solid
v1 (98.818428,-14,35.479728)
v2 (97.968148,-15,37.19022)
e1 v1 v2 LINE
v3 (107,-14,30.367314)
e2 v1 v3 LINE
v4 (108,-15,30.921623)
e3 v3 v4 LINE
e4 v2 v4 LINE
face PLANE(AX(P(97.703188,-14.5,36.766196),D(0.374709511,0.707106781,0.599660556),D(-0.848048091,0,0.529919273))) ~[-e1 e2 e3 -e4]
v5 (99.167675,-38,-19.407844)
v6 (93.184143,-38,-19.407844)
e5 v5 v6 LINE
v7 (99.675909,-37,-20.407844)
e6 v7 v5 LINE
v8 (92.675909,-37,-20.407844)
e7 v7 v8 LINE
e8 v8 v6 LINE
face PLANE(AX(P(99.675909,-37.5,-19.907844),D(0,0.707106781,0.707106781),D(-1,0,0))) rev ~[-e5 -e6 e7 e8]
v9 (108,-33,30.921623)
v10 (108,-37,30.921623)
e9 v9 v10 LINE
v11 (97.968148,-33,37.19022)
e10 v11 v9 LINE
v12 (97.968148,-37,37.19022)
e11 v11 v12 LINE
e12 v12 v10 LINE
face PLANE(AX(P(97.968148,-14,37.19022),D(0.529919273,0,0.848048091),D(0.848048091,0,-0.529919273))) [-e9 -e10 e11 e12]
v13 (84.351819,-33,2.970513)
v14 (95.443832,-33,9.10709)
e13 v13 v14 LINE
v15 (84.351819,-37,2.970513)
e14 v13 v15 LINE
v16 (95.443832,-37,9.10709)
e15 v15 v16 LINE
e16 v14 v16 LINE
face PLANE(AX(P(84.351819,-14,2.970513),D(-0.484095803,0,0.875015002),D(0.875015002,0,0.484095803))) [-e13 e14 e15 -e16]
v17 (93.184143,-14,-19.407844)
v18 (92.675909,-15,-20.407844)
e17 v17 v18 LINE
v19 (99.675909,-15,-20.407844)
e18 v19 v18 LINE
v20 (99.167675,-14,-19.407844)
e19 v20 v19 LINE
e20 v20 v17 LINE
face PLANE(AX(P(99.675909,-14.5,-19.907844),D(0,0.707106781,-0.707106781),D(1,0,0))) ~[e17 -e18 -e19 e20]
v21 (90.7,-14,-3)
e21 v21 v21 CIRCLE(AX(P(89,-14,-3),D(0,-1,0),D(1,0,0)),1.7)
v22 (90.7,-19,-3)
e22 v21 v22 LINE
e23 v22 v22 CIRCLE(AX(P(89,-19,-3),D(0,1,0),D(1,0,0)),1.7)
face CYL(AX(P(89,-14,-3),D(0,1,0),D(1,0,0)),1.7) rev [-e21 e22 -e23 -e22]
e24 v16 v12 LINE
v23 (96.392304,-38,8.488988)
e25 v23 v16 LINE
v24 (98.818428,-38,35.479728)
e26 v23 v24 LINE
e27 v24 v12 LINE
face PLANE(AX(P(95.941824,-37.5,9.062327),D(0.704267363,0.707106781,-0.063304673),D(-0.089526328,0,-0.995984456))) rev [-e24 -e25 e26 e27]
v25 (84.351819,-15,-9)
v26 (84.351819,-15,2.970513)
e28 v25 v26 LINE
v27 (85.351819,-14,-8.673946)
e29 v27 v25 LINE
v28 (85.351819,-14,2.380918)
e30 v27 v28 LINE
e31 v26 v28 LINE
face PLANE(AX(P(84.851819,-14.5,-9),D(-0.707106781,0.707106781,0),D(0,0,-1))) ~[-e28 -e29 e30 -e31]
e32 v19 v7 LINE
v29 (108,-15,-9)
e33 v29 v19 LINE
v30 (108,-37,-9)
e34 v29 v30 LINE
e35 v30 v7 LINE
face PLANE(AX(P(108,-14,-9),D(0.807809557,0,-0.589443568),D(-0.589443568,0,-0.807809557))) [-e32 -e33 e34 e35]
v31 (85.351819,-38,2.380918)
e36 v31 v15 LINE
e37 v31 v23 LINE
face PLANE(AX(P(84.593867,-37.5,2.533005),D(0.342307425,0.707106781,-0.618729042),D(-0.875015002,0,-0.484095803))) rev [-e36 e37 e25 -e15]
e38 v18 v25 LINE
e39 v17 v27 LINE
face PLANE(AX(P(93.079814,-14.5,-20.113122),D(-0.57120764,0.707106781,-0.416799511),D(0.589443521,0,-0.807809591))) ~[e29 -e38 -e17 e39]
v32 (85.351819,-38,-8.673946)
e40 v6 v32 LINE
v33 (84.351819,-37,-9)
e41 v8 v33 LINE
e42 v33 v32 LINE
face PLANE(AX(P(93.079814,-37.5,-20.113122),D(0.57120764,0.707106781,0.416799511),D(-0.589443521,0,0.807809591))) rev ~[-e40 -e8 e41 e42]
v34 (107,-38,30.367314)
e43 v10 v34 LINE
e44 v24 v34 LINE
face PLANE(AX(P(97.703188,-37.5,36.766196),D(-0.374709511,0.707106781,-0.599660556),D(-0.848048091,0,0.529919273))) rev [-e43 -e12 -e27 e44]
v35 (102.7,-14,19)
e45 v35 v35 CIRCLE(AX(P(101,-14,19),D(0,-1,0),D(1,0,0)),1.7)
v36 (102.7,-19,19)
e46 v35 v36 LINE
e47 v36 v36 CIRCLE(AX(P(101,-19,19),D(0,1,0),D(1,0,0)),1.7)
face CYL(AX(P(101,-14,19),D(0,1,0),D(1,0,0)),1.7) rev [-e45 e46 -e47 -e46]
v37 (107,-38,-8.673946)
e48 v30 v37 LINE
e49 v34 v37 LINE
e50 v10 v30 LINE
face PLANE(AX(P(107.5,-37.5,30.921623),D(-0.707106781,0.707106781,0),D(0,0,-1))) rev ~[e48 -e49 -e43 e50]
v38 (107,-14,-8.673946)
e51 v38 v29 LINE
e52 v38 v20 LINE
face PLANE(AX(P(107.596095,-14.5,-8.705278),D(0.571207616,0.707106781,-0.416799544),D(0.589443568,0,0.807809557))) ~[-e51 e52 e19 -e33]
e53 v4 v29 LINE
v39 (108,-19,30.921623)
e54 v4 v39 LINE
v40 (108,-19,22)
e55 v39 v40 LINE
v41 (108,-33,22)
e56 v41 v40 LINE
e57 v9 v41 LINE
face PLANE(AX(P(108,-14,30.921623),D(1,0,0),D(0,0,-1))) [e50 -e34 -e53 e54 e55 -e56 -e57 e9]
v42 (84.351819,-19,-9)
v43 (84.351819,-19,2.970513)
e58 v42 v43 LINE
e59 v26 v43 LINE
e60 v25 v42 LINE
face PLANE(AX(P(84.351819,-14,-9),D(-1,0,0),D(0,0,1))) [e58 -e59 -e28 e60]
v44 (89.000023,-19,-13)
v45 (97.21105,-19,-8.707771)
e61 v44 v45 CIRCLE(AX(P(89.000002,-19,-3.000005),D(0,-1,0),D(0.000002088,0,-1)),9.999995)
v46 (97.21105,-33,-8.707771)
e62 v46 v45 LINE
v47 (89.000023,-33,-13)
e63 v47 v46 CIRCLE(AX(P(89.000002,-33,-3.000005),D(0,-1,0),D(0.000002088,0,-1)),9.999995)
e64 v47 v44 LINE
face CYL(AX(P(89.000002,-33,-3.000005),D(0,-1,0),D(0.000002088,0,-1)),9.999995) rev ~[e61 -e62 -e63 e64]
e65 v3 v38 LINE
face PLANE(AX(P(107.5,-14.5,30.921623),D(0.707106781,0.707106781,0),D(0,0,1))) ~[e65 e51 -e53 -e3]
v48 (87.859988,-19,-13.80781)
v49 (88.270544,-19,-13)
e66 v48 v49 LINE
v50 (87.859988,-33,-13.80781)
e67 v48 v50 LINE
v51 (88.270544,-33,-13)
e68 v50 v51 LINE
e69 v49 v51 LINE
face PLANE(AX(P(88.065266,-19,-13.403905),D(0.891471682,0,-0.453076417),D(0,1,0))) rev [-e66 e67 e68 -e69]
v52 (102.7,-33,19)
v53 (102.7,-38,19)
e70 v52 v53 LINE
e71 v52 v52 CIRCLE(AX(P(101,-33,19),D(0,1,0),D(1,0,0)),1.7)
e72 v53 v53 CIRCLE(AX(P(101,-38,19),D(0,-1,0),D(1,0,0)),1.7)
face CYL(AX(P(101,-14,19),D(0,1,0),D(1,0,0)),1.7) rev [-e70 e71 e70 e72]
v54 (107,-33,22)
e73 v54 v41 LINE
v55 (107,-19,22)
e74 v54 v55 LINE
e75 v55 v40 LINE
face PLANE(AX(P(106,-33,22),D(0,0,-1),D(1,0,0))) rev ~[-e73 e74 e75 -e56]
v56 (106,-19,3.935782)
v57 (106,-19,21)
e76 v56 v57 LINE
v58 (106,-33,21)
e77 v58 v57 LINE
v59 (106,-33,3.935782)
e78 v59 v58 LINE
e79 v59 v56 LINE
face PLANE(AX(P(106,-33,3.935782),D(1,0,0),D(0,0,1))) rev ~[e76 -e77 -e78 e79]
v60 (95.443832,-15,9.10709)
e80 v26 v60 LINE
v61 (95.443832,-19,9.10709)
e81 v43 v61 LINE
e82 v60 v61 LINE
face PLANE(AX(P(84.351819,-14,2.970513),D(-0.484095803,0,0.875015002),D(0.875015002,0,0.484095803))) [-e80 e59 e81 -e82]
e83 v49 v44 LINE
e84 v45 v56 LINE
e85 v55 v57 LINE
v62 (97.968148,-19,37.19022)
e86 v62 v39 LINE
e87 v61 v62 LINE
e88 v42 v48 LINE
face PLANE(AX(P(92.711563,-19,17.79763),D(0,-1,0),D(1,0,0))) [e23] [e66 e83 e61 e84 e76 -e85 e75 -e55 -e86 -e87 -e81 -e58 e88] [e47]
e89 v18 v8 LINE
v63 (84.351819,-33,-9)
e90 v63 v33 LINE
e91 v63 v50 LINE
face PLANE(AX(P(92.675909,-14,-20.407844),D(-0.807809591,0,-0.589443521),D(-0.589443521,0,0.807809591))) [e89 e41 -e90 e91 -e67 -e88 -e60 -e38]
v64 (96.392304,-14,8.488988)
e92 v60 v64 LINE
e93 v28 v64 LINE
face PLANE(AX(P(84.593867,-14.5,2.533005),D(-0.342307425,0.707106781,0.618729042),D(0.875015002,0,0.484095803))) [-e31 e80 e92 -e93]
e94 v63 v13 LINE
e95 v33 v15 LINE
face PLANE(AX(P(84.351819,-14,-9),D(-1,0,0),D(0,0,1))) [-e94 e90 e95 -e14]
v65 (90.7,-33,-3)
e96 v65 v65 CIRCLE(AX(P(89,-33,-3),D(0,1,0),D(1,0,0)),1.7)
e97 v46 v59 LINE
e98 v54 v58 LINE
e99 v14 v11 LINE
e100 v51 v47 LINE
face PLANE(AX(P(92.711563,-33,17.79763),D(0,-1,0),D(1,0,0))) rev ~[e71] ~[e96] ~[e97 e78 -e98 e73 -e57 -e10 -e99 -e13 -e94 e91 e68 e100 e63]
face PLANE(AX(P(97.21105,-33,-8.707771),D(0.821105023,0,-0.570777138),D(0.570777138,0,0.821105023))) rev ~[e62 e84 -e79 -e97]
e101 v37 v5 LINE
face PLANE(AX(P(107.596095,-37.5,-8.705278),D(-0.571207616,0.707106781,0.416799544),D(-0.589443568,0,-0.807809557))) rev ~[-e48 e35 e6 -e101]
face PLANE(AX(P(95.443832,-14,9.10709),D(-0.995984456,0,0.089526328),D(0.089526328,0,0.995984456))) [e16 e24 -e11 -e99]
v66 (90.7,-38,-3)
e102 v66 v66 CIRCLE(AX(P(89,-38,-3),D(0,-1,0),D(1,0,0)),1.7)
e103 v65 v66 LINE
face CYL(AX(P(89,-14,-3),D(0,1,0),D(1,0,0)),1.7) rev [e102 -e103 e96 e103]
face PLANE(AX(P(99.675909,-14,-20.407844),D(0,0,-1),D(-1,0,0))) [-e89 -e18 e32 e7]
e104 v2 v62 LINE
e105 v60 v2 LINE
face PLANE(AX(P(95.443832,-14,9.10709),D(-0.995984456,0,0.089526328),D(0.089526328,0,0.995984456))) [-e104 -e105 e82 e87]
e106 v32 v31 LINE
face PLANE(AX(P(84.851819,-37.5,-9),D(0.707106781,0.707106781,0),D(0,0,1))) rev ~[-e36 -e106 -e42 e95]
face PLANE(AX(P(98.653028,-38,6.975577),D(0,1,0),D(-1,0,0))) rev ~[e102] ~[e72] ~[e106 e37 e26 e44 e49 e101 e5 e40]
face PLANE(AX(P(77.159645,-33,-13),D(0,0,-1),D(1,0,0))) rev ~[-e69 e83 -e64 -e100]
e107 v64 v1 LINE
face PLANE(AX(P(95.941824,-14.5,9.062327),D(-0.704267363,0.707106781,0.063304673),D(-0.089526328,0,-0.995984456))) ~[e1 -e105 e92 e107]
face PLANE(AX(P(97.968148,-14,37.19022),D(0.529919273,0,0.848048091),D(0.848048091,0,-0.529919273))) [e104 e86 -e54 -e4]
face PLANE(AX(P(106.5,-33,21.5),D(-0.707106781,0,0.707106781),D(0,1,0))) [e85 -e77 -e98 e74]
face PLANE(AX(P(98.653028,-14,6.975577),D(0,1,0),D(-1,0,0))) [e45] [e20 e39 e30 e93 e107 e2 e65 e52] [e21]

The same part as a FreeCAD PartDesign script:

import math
import FreeCAD as App
import Part
import Sketcher
Q = App.Units.Quantity


def edges_at(feature, points):
    """Names of the edges that pass closest to the given points."""
    edges = feature.Shape.Edges
    near = lambda p: min(range(len(edges)), key=lambda i: edges[i].distToShape(Part.Vertex(*p))[0])
    return sorted({f"Edge{near(p) + 1}" for p in points})


def add_polygon(sketch, points):
    """Adds a closed chain of lines whose ends are joined by coincident constraints."""
    first, n = sketch.GeometryCount, len(points)
    for a, b in zip(points, points[1:] + points[:1]):
        sketch.addGeometry(Part.LineSegment(App.Vector(*a, 0), App.Vector(*b, 0)), False)
    for i in range(n):
        sketch.addConstraint(Sketcher.Constraint("Coincident", first + i, 2, first + (i + 1) % n, 1))

doc = App.newDocument("Part")
body = doc.addObject("PartDesign::Body", "Body")

# Sketch on XZ plane
sketch1 = body.newObject("Sketcher::SketchObject", "Sketch")
sketch1.AttachmentSupport = (doc.getObject("XZ_Plane"), [""])
sketch1.MapMode = "FlatFace"
sketch1.AttachmentOffset = App.Placement(App.Vector(0, 0, -33), App.Rotation())
sketch1.addGeometry(Part.ArcOfCircle(Part.Circle(App.Vector(-89.000002, -3.000005, 0), App.Vector(0, 0, 1), 9.999995), math.radians(-145.195582), math.radians(-90.00012)), False)
sketch1.addGeometry(Part.LineSegment(App.Vector(-97.21105, -8.707771, 0), App.Vector(-106, 3.935782, 0)), False)
sketch1.addGeometry(Part.LineSegment(App.Vector(-106, 3.935782, 0), App.Vector(-106, 22, 0)), False)
sketch1.addGeometry(Part.LineSegment(App.Vector(-106, 22, 0), App.Vector(-112.578117, 22, 0)), False)
sketch1.addGeometry(Part.LineSegment(App.Vector(-112.578117, 22, 0), App.Vector(-112.578117, 42.659393, 0)), False)
sketch1.addGeometry(Part.LineSegment(App.Vector(-112.578117, 42.659393, 0), App.Vector(-77.159645, 42.659393, 0)), False)
sketch1.addGeometry(Part.LineSegment(App.Vector(-77.159645, 42.659393, 0), App.Vector(-77.159645, -13, 0)), False)
sketch1.addGeometry(Part.LineSegment(App.Vector(-77.159645, -13, 0), App.Vector(-89.000023, -13, 0)), False)
sketch1.addConstraint(Sketcher.Constraint("Tangent", 0, 1, 1, 1))
sketch1.addConstraint(Sketcher.Constraint("Coincident", 1, 2, 2, 1))
sketch1.addConstraint(Sketcher.Constraint("Coincident", 2, 2, 3, 1))
sketch1.addConstraint(Sketcher.Constraint("Coincident", 3, 2, 4, 1))
sketch1.addConstraint(Sketcher.Constraint("Coincident", 4, 2, 5, 1))
sketch1.addConstraint(Sketcher.Constraint("Coincident", 5, 2, 6, 1))
sketch1.addConstraint(Sketcher.Constraint("Coincident", 6, 2, 7, 1))
sketch1.addConstraint(Sketcher.Constraint("Coincident", 7, 2, 0, 2))
sketch1.addConstraint(Sketcher.Constraint("Vertical", 2))
sketch1.addConstraint(Sketcher.Constraint("Horizontal", 3))
sketch1.addConstraint(Sketcher.Constraint("Vertical", 4))
sketch1.addConstraint(Sketcher.Constraint("Horizontal", 5))
sketch1.addConstraint(Sketcher.Constraint("Vertical", 6))
sketch1.addConstraint(Sketcher.Constraint("Horizontal", 7))
sketch1.addConstraint(Sketcher.Constraint("DistanceX", 1, 2, -1, 1, 106.0))
sketch1.addConstraint(Sketcher.Constraint("DistanceY", -1, 1, 2, 2, 22.0))
sketch1.addConstraint(Sketcher.Constraint("DistanceY", 6, 2, -1, 1, 13.0))
sketch1.addConstraint(Sketcher.Constraint("Radius", 0, 9.999995))
sketch1.addConstraint(Sketcher.Constraint("DistanceX", 7, 2, 7, 1, 11.840378))
sketch1.addConstraint(Sketcher.Constraint("DistanceY", 2, 1, 2, 2, 18.064218))
sketch1.addConstraint(Sketcher.Constraint("DistanceY", 0, 3, 4, 2, 45.659398))
sketch1.addConstraint(Sketcher.Constraint("DistanceX", 3, 2, 3, 1, 6.578117))
sketch1.addConstraint(Sketcher.Constraint("DistanceX", 5, 1, 5, 2, 35.418472))
sketch1.addConstraint(Sketcher.Constraint("DistanceX", 0, 1, -1, 1, 97.21105))
pad1 = body.newObject("PartDesign::Pad", "Pad")
pad1.Profile = sketch1
pad1.Length = 14
body2 = doc.addObject("PartDesign::Body", "Body001")

# Sketch on XZ plane
sketch2 = body2.newObject("Sketcher::SketchObject", "Sketch001")
sketch2.AttachmentSupport = (doc.getObject("XZ_Plane001"), [""])
sketch2.MapMode = "FlatFace"
sketch2.AttachmentOffset = App.Placement(App.Vector(0, 0, -14), App.Rotation())
add_polygon(sketch2, [(-95.443832, 9.10709), (-84.351819, 2.970513), (-84.351819, -9), (-92.675909, -20.407844), (-99.675909, -20.407844), (-108, -9), (-108, 30.921623), (-97.968148, 37.19022)])  # lines 0-7
sketch2.addGeometry(Part.Circle(App.Vector(-89, -3, 0), App.Vector(0, 0, 1), 1.7), False)  # 8
sketch2.addGeometry(Part.Circle(App.Vector(-101, 19, 0), App.Vector(0, 0, 1), 1.7), False)  # 9
sketch2.addConstraint(Sketcher.Constraint("Vertical", 1))
sketch2.addConstraint(Sketcher.Constraint("Horizontal", 3))
sketch2.addConstraint(Sketcher.Constraint("Vertical", 5))
sketch2.addConstraint(Sketcher.Constraint("Equal", 8, 9))
sketch2.addConstraint(Sketcher.Constraint("Horizontal", 1, 2, 4, 2))
sketch2.addConstraint(Sketcher.Constraint("Equal", 2, 4))
sketch2.addConstraint(Sketcher.Constraint("Diameter", 8, 3.4))
sketch2.addConstraint(Sketcher.Constraint("DistanceX", 3, 2, 3, 1, 7.0))
sketch2.addConstraint(Sketcher.Constraint("Angle", 6, Q("32.000001 deg")))
sketch2.addConstraint(Sketcher.Constraint("DistanceX", 8, 3, -1, 1, 89.0))
sketch2.addConstraint(Sketcher.Constraint("DistanceY", 8, 3, -1, 1, 3.0))
sketch2.addConstraint(Sketcher.Constraint("DistanceX", 9, 3, -1, 1, 101.0))
sketch2.addConstraint(Sketcher.Constraint("DistanceY", -1, 1, 9, 3, 19.0))
sketch2.addConstraint(Sketcher.Constraint("DistanceY", 1, 2, -1, 1, 9.0))
sketch2.addConstraint(Sketcher.Constraint("DistanceX", 4, 2, -1, 1, 108.0))
sketch2.addConstraint(Sketcher.Constraint("Distance", 0, 12.676369))
sketch2.addConstraint(Sketcher.Constraint("DistanceY", 1, 2, 1, 1, 11.970513))
sketch2.addConstraint(Sketcher.Constraint("DistanceY", 5, 1, 5, 2, 39.921623))
sketch2.addConstraint(Sketcher.Constraint("DistanceX", 0, 2, -1, 1, 84.351819))
sketch2.addConstraint(Sketcher.Constraint("DistanceX", 6, 2, -1, 1, 97.968148))
sketch2.addConstraint(Sketcher.Constraint("DistanceX", 7, 2, -1, 1, 95.443832))
sketch2.addConstraint(Sketcher.Constraint("Distance", 2, 14.121947))
pad2 = body2.newObject("PartDesign::Pad", "Pad001")
pad2.Profile = sketch2
pad2.Length = 24
pad2.Reversed = True
doc.recompute()

boolean = body2.newObject("PartDesign::Boolean", "Boolean")
boolean.Type = "Cut"
boolean.addObjects([body])
doc.recompute()

chamfer = body2.newObject("PartDesign::Chamfer", "Chamfer")
chamfer.Base = (boolean, edges_at(boolean, [
    (-89.898, 14, 6.039),
    (-96.706, 14, 23.149),
    (-102.984, 14, 34.056),
    (-108, 14, 10.961),
    (-103.838, 14, -14.704),
    (-96.176, 14, -20.408),
    (-88.514, 14, -14.704),
    (-84.352, 14, -3.015),
    (-108, 38, 10.961),
    (-103.838, 38, -14.704),
    (-96.176, 38, -20.408),
    (-87.271, 26, -13),
    (-88.514, 38, -14.704),
    (-106, 26, 22),
    (-89.898, 38, 6.039),
    (-96.706, 38, 23.149),
    (-102.984, 38, 34.056),
    (-84.352, 38, -3.015),
]))
chamfer.Size = 1
body3 = doc.addObject("PartDesign::Body", "Body002")
doc.recompute()

mirroring = doc.addObject("Part::Mirroring", "Mirroring")
mirroring.Source = body2
mirroring.Base = App.Vector(0, 0, 0)
mirroring.Normal = App.Vector(1, 0, 0)
body3.BaseFeature = mirroring
doc.recompute()
body4 = doc.addObject("PartDesign::Body", "Body003")
doc.recompute()

mirroring2 = doc.addObject("Part::Mirroring", "Mirroring001")
mirroring2.Source = body3
mirroring2.Base = App.Vector(0, 0, 0)
mirroring2.Normal = App.Vector(0, 1, 0)
body4.BaseFeature = mirroring2
doc.recompute()
body2.Visibility = False
body3.Visibility = False
mirroring.Visibility = False
mirroring2.Visibility = False

doc.recompute()
